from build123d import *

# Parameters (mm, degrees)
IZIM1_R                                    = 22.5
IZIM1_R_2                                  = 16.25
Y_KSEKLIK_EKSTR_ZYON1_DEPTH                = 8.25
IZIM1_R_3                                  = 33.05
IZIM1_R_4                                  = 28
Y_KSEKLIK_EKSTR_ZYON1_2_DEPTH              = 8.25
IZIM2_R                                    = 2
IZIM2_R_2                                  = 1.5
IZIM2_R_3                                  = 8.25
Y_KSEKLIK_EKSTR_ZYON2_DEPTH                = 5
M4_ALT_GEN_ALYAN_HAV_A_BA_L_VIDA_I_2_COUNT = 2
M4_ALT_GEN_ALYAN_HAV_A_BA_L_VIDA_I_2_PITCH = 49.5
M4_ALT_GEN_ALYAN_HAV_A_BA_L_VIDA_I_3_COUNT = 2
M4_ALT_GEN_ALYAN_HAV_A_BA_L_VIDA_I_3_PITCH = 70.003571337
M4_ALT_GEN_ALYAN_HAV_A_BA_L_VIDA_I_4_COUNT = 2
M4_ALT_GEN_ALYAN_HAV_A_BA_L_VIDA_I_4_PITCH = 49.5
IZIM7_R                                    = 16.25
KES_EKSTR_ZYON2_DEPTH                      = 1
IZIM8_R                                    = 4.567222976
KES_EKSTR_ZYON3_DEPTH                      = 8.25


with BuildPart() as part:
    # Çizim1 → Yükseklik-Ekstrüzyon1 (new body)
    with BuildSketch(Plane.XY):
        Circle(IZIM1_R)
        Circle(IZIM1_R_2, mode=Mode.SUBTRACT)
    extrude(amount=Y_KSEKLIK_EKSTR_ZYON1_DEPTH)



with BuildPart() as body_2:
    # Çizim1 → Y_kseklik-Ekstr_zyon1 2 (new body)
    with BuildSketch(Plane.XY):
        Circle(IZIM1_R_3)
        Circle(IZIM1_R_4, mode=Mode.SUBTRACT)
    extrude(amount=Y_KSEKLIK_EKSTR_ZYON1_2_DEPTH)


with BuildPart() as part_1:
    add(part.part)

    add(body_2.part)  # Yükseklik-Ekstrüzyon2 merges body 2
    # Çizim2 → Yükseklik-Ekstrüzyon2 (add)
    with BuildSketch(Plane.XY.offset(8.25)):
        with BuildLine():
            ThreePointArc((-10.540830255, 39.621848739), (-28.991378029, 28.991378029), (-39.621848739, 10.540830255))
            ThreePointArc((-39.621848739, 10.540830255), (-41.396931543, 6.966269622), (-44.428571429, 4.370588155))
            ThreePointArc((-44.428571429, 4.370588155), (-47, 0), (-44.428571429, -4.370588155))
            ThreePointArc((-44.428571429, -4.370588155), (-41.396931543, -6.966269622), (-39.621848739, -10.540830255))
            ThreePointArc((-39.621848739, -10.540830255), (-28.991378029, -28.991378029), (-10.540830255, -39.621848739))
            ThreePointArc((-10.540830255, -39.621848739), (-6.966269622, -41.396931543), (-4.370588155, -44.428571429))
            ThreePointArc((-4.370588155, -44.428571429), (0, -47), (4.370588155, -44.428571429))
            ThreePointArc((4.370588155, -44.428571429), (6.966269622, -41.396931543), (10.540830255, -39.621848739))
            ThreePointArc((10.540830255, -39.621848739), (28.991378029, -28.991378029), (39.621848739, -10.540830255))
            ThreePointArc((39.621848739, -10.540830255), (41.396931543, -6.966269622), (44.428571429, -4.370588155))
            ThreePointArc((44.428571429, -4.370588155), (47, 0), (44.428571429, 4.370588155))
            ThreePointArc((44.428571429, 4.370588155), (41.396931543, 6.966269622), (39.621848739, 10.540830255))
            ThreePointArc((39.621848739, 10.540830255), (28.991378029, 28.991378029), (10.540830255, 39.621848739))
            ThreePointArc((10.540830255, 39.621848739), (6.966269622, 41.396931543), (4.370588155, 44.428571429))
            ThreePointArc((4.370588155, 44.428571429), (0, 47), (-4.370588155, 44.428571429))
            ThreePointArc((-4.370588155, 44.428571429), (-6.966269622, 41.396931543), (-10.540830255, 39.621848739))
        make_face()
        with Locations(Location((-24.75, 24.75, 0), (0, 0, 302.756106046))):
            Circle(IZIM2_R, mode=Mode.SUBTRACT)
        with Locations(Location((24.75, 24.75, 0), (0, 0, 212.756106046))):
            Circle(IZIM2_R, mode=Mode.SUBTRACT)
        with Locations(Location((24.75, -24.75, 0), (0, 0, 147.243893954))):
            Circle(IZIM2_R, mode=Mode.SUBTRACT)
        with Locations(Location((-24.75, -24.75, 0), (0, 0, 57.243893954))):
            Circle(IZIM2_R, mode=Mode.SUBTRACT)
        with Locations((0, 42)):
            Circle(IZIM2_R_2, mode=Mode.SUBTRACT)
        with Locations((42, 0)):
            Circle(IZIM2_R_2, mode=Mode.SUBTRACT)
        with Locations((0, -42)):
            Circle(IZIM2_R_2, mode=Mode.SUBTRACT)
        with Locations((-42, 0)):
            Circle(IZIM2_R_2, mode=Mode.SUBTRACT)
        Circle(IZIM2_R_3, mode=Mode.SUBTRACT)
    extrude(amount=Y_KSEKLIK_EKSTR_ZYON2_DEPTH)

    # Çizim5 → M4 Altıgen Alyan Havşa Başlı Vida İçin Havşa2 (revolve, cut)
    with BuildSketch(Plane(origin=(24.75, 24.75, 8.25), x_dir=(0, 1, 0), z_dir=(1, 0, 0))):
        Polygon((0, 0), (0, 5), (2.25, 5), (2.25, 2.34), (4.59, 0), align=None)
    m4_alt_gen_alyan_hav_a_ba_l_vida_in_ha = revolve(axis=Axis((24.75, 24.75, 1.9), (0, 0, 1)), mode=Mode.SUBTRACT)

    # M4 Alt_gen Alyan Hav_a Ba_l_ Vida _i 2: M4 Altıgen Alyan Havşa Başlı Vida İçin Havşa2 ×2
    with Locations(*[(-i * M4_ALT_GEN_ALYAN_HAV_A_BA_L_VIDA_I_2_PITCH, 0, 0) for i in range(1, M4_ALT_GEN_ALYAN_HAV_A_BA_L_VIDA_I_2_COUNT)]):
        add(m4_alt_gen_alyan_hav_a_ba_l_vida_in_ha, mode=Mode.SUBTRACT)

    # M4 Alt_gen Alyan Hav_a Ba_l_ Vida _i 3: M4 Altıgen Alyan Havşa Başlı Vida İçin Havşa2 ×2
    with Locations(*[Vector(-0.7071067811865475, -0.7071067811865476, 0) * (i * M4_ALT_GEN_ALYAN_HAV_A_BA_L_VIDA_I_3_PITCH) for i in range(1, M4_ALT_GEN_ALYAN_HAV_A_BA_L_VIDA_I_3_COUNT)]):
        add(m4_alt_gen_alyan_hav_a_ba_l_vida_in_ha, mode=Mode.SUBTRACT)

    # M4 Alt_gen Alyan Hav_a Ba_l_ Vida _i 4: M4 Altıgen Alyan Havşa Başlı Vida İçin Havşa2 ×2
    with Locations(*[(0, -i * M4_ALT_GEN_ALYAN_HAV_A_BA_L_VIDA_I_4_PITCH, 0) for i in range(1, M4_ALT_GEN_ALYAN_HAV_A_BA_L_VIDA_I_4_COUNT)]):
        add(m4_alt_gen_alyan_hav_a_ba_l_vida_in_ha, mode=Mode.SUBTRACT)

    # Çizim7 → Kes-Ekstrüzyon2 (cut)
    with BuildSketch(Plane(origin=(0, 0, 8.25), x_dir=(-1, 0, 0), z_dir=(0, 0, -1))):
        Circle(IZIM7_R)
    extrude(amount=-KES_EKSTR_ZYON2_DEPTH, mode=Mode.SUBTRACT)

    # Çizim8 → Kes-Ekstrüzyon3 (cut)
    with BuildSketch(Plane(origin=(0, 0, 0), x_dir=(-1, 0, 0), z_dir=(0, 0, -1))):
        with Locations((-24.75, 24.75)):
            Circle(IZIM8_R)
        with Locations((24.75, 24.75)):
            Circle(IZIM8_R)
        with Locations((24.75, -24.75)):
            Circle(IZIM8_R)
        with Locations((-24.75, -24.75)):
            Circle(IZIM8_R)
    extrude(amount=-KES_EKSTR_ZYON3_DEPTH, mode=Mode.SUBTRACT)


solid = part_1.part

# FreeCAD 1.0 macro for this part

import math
import FreeCAD as App
import Part
import Sketcher
Q = App.Units.Quantity

doc = App.newDocument("Part")
body = doc.addObject("PartDesign::Body", "Body")

# Sketch on XY plane
sketch1 = doc.addObject("Sketcher::SketchObject", "Sketch")
body.addObject(sketch1)
sketch1.AttachmentSupport = (doc.XY_Plane, [""])
sketch1.MapMode = "FlatFace"
sketch1.addGeometry(Part.Circle(App.Vector(0, 0, 0), App.Vector(0, 0, 1), 22), False)
sketch1.addGeometry(Part.Circle(App.Vector(0, 0, 0), App.Vector(0, 0, 1), 16), False)
sketch1.addConstraint(Sketcher.Constraint("Coincident", 0, 3, -1, 1))
sketch1.addConstraint(Sketcher.Constraint("Coincident", 1, 3, -1, 1))
sketch1.addConstraint(Sketcher.Constraint("Diameter", 0, 45.0))
sketch1.addConstraint(Sketcher.Constraint("Diameter", 1, 32.5))
pad1 = doc.addObject("PartDesign::Pad", "Pad")
body.addObject(pad1)
pad1.Profile = sketch1
pad1.Length = 8.25
body2 = doc.addObject("PartDesign::Body", "Body001")

# Sketch on XY plane
sketch2 = doc.addObject("Sketcher::SketchObject", "Sketch001")
body2.addObject(sketch2)
sketch2.AttachmentSupport = (doc.getObject("XY_Plane001"), [""])
sketch2.MapMode = "FlatFace"
sketch2.addGeometry(Part.Circle(App.Vector(0, 0, 0), App.Vector(0, 0, 1), 33), False)
sketch2.addGeometry(Part.Circle(App.Vector(0, 0, 0), App.Vector(0, 0, 1), 28), False)
sketch2.addConstraint(Sketcher.Constraint("Coincident", 0, 3, -1, 1))
sketch2.addConstraint(Sketcher.Constraint("Coincident", 1, 3, -1, 1))
sketch2.addConstraint(Sketcher.Constraint("Diameter", 1, 56.0))
sketch2.addConstraint(Sketcher.Constraint("Diameter", 0, 66.1))
pad2 = doc.addObject("PartDesign::Pad", "Pad001")
body2.addObject(pad2)
pad2.Profile = sketch2
pad2.Length = 8.25
body.AllowCompound = True
doc.recompute()

boolean = doc.addObject("PartDesign::Boolean", "Boolean")
body.addObject(boolean)
boolean.Type = "Fuse"
boolean.addObjects([body2])

# Sketch on XY plane
sketch3 = doc.addObject("Sketcher::SketchObject", "Sketch002")
body.addObject(sketch3)
sketch3.AttachmentSupport = (doc.XY_Plane, [""])
sketch3.MapMode = "FlatFace"
sketch3.AttachmentOffset = App.Placement(App.Vector(0, 0, 8.25), App.Rotation())
sketch3.addGeometry(Part.ArcOfCircle(Part.Circle(App.Vector(0, 0, 0), App.Vector(0, 0, 1), 41), math.radians(105), math.radians(165)), False)
sketch3.addGeometry(Part.ArcOfCircle(Part.Circle(App.Vector(-49.3, 13.1, 0), App.Vector(0, 0, 1), 10), math.radians(-61), math.radians(-15)), False)
sketch3.addGeometry(Part.ArcOfCircle(Part.Circle(App.Vector(-42, 0, 0), App.Vector(0, 0, 1), 5), math.radians(119), math.radians(241)), False)
sketch3.addGeometry(Part.ArcOfCircle(Part.Circle(App.Vector(-49.3, -13.1, 0), App.Vector(0, 0, 1), 10), math.radians(15), math.radians(61)), False)
sketch3.addGeometry(Part.ArcOfCircle(Part.Circle(App.Vector(0, 0, 0), App.Vector(0, 0, 1), 41), math.radians(-165), math.radians(-105)), False)
sketch3.addGeometry(Part.ArcOfCircle(Part.Circle(App.Vector(-13.1, -49.3, 0), App.Vector(0, 0, 1), 10), math.radians(29), math.radians(75)), False)
sketch3.addGeometry(Part.ArcOfCircle(Part.Circle(App.Vector(0, -42, 0), App.Vector(0, 0, 1), 5), math.radians(-151), math.radians(-29)), False)
sketch3.addGeometry(Part.ArcOfCircle(Part.Circle(App.Vector(13.1, -49.3, 0), App.Vector(0, 0, 1), 10), math.radians(105), math.radians(151)), False)
sketch3.addGeometry(Part.ArcOfCircle(Part.Circle(App.Vector(0, 0, 0), App.Vector(0, 0, 1), 41), math.radians(-75), math.radians(-15)), False)
sketch3.addGeometry(Part.ArcOfCircle(Part.Circle(App.Vector(49.3, -13.1, 0), App.Vector(0, 0, 1), 10), math.radians(119), math.radians(165)), False)
sketch3.addGeometry(Part.ArcOfCircle(Part.Circle(App.Vector(42, 0, 0), App.Vector(0, 0, 1), 5), math.radians(-61), math.radians(61)), False)
sketch3.addGeometry(Part.ArcOfCircle(Part.Circle(App.Vector(49.3, 13.1, 0), App.Vector(0, 0, 1), 10), math.radians(-165), math.radians(-119)), False)
sketch3.addGeometry(Part.ArcOfCircle(Part.Circle(App.Vector(0, 0, 0), App.Vector(0, 0, 1), 41), math.radians(15), math.radians(75)), False)
sketch3.addGeometry(Part.ArcOfCircle(Part.Circle(App.Vector(13.1, 49.3, 0), App.Vector(0, 0, 1), 10), math.radians(-151), math.radians(-105)), False)
sketch3.addGeometry(Part.ArcOfCircle(Part.Circle(App.Vector(0, 42, 0), App.Vector(0, 0, 1), 5), math.radians(29), math.radians(151)), False)
sketch3.addGeometry(Part.ArcOfCircle(Part.Circle(App.Vector(-13.1, 49.3, 0), App.Vector(0, 0, 1), 10), math.radians(-75), math.radians(-29)), False)
sketch3.addGeometry(Part.Circle(App.Vector(-24.8, -24.8, 0), App.Vector(0, 0, 1), 2), False)
sketch3.addGeometry(Part.Circle(App.Vector(0, -42, 0), App.Vector(0, 0, 1), 1.5), False)
sketch3.addGeometry(Part.Circle(App.Vector(24.8, -24.8, 0), App.Vector(0, 0, 1), 2), False)
sketch3.addGeometry(Part.Circle(App.Vector(-42, 0, 0), App.Vector(0, 0, 1), 1.5), False)
sketch3.addGeometry(Part.Circle(App.Vector(-24.8, 24.8, 0), App.Vector(0, 0, 1), 2), False)
sketch3.addGeometry(Part.Circle(App.Vector(0, 0, 0), App.Vector(0, 0, 1), 8.2), False)
sketch3.addGeometry(Part.Circle(App.Vector(42, 0, 0), App.Vector(0, 0, 1), 1.5), False)
sketch3.addGeometry(Part.Circle(App.Vector(0, 42, 0), App.Vector(0, 0, 1), 1.5), False)
sketch3.addGeometry(Part.Circle(App.Vector(24.8, 24.8, 0), App.Vector(0, 0, 1), 2), False)
sketch3.addConstraint(Sketcher.Constraint("Tangent", 0, 2, 1, 2))
sketch3.addConstraint(Sketcher.Constraint("Tangent", 1, 1, 2, 1))
sketch3.addConstraint(Sketcher.Constraint("Tangent", 2, 2, 3, 2))
sketch3.addConstraint(Sketcher.Constraint("Tangent", 3, 1, 4, 1))
sketch3.addConstraint(Sketcher.Constraint("Tangent", 4, 2, 5, 2))
sketch3.addConstraint(Sketcher.Constraint("Tangent", 5, 1, 6, 1))
sketch3.addConstraint(Sketcher.Constraint("Tangent", 6, 2, 7, 2))
sketch3.addConstraint(Sketcher.Constraint("Tangent", 7, 1, 8, 1))
sketch3.addConstraint(Sketcher.Constraint("Tangent", 8, 2, 9, 2))
sketch3.addConstraint(Sketcher.Constraint("Tangent", 9, 1, 10, 1))
sketch3.addConstraint(Sketcher.Constraint("Tangent", 10, 2, 11, 2))
sketch3.addConstraint(Sketcher.Constraint("Tangent", 11, 1, 12, 1))
sketch3.addConstraint(Sketcher.Constraint("Tangent", 12, 2, 13, 2))
sketch3.addConstraint(Sketcher.Constraint("Tangent", 13, 1, 14, 1))
sketch3.addConstraint(Sketcher.Constraint("Tangent", 14, 2, 15, 2))
sketch3.addConstraint(Sketcher.Constraint("Tangent", 15, 1, 0, 1))
sketch3.addConstraint(Sketcher.Constraint("Coincident", 0, 3, -1, 1))
sketch3.addConstraint(Sketcher.Constraint("Coincident", 4, 3, -1, 1))
sketch3.addConstraint(Sketcher.Constraint("Coincident", 8, 3, -1, 1))
sketch3.addConstraint(Sketcher.Constraint("Coincident", 12, 3, -1, 1))
sketch3.addConstraint(Sketcher.Constraint("Coincident", 21, 3, -1, 1))
sketch3.addConstraint(Sketcher.Constraint("Coincident", 17, 3, 6, 3))
sketch3.addConstraint(Sketcher.Constraint("Coincident", 19, 3, 2, 3))
sketch3.addConstraint(Sketcher.Constraint("Coincident", 22, 3, 10, 3))
sketch3.addConstraint(Sketcher.Constraint("Coincident", 23, 3, 14, 3))
sketch3.addConstraint(Sketcher.Constraint("Equal", 1, 3))
sketch3.addConstraint(Sketcher.Constraint("Equal", 0, 4))
sketch3.addConstraint(Sketcher.Constraint("Equal", 3, 5))
sketch3.addConstraint(Sketcher.Constraint("Equal", 2, 6))
sketch3.addConstraint(Sketcher.Constraint("Equal", 5, 7))
sketch3.addConstraint(Sketcher.Constraint("Equal", 4, 8))
sketch3.addConstraint(Sketcher.Constraint("Equal", 7, 9))
sketch3.addConstraint(Sketcher.Constraint("Equal", 6, 10))
sketch3.addConstraint(Sketcher.Constraint("Equal", 9, 11))
sketch3.addConstraint(Sketcher.Constraint("Equal", 8, 12))
sketch3.addConstraint(Sketcher.Constraint("Equal", 11, 13))
sketch3.addConstraint(Sketcher.Constraint("Equal", 10, 14))
sketch3.addConstraint(Sketcher.Constraint("Equal", 13, 15))
sketch3.addConstraint(Sketcher.Constraint("Equal", 16, 18))
sketch3.addConstraint(Sketcher.Constraint("Equal", 17, 19))
sketch3.addConstraint(Sketcher.Constraint("Equal", 18, 20))
sketch3.addConstraint(Sketcher.Constraint("Equal", 19, 22))
sketch3.addConstraint(Sketcher.Constraint("Equal", 22, 23))
sketch3.addConstraint(Sketcher.Constraint("Equal", 20, 24))
sketch3.addConstraint(Sketcher.Constraint("Symmetric", 2, 3, 10, 3, -1, 1))
sketch3.addConstraint(Sketcher.Constraint("Symmetric", 6, 3, 14, 3, -1, 1))
sketch3.addConstraint(Sketcher.Constraint("Symmetric", 18, 3, 20, 3, -1, 1))
sketch3.addConstraint(Sketcher.Constraint("Symmetric", 16, 3, 24, 3, -1, 1))
sketch3.addConstraint(Sketcher.Constraint("Symmetric", 16, 3, 18, 3, -2))
sketch3.addConstraint(Sketcher.Constraint("PointOnObject", 2, 3, -1))
sketch3.addConstraint(Sketcher.Constraint("PointOnObject", 6, 3, -2))
sketch3.addConstraint(Sketcher.Constraint("Diameter", 16, 4.0))
sketch3.addConstraint(Sketcher.Constraint("Diameter", 17, 3.0))
sketch3.addConstraint(Sketcher.Constraint("Radius", 0, 41.0))
sketch3.addConstraint(Sketcher.Constraint("Radius", 1, 10.0))
sketch3.addConstraint(Sketcher.Constraint("Radius", 2, 5.0))
sketch3.addConstraint(Sketcher.Constraint("Diameter", 21, 16.5))
sketch3.addConstraint(Sketcher.Constraint("DistanceX", 2, 3, -1, 1, 42.0))
sketch3.addConstraint(Sketcher.Constraint("DistanceY", 6, 3, -1, 1, 42.0))
sketch3.addConstraint(Sketcher.Constraint("DistanceX", 16, 3, -1, 1, 24.75))
sketch3.addConstraint(Sketcher.Constraint("DistanceY", 16, 3, -1, 1, 24.75))
pad3 = doc.addObject("PartDesign::Pad", "Pad002")
body.addObject(pad3)
pad3.Profile = sketch3
pad3.Length = 5

# Sketch on YZ plane
sketch4 = doc.addObject("Sketcher::SketchObject", "Sketch003")
body.addObject(sketch4)
sketch4.AttachmentSupport = (doc.YZ_Plane, [""])
sketch4.MapMode = "FlatFace"
sketch4.AttachmentOffset = App.Placement(App.Vector(0, 0, 24.75), App.Rotation())
sketch4.addGeometry(Part.LineSegment(App.Vector(24.8, 13.2, 0), App.Vector(24.8, 8.2, 0)), False)
sketch4.addGeometry(Part.LineSegment(App.Vector(24.8, 8.2, 0), App.Vector(29.3, 8.2, 0)), False)
sketch4.addGeometry(Part.LineSegment(App.Vector(29.3, 8.2, 0), App.Vector(27, 10.6, 0)), False)
sketch4.addGeometry(Part.LineSegment(App.Vector(27, 10.6, 0), App.Vector(27, 13.2, 0)), False)
sketch4.addGeometry(Part.LineSegment(App.Vector(27, 13.2, 0), App.Vector(24.8, 13.2, 0)), False)
sketch4.addGeometry(Part.LineSegment(App.Vector(24.8, 8.2, 0), App.Vector(24.8, 13.2, 0)), True)  # axis
sketch4.addConstraint(Sketcher.Constraint("Coincident", 0, 2, 1, 1))
sketch4.addConstraint(Sketcher.Constraint("Coincident", 1, 2, 2, 1))
sketch4.addConstraint(Sketcher.Constraint("Coincident", 2, 2, 3, 1))
sketch4.addConstraint(Sketcher.Constraint("Coincident", 3, 2, 4, 1))
sketch4.addConstraint(Sketcher.Constraint("Coincident", 4, 2, 0, 1))
sketch4.addConstraint(Sketcher.Constraint("Vertical", 0))
sketch4.addConstraint(Sketcher.Constraint("Horizontal", 1))
sketch4.addConstraint(Sketcher.Constraint("Vertical", 3))
sketch4.addConstraint(Sketcher.Constraint("Horizontal", 4))
sketch4.addConstraint(Sketcher.Constraint("Vertical", 5))
sketch4.addConstraint(Sketcher.Constraint("Coincident", 5, 1, 0, 2))
sketch4.addConstraint(Sketcher.Constraint("Horizontal", 3, 2, 5, 2))
sketch4.addConstraint(Sketcher.Constraint("DistanceY", 0, 2, 0, 1, 5.0))
sketch4.addConstraint(Sketcher.Constraint("Angle", 2, Q("135 deg")))
sketch4.addConstraint(Sketcher.Constraint("DistanceX", -1, 1, 2, 2, 27.0))
sketch4.addConstraint(Sketcher.Constraint("DistanceX", 1, 1, 1, 2, 4.59))
sketch4.addConstraint(Sketcher.Constraint("DistanceX", 4, 2, 4, 1, 2.25))
sketch4.addConstraint(Sketcher.Constraint("DistanceY", -1, 1, 0, 2, 8.25))
groove = doc.addObject("PartDesign::Groove", "Groove")
body.addObject(groove)
groove.Profile = sketch4
groove.ReferenceAxis = (sketch4, ["Axis0"])
groove.Angle = 360
doc.recompute()

linearpattern = doc.addObject("PartDesign::LinearPattern", "LinearPattern")
body.addObject(linearpattern)
linearpattern.Originals = [groove]
linearpattern.Direction = (doc.X_Axis, [""])
linearpattern.Mode = "offset"
linearpattern.Offset = 49.5
linearpattern.Occurrences = 2
linearpattern.Reversed = True
body.Tip = linearpattern
doc.recompute()

datumline = doc.addObject("PartDesign::Line", "DatumLine")
body.addObject(datumline)
datumline.Placement = App.Placement(App.Vector(0, 0, 0), App.Rotation(App.Vector(0, 0, 1), App.Vector(-0.707106781, -0.707106781, 0)))
linearpattern2 = doc.addObject("PartDesign::LinearPattern", "LinearPattern001")
body.addObject(linearpattern2)
linearpattern2.Originals = [groove]
linearpattern2.Direction = (datumline, [""])
linearpattern2.Mode = "offset"
linearpattern2.Offset = 70.003571
linearpattern2.Occurrences = 2
body.Tip = linearpattern2
doc.recompute()

linearpattern3 = doc.addObject("PartDesign::LinearPattern", "LinearPattern002")
body.addObject(linearpattern3)
linearpattern3.Originals = [groove]
linearpattern3.Direction = (doc.Y_Axis, [""])
linearpattern3.Mode = "offset"
linearpattern3.Offset = 49.5
linearpattern3.Occurrences = 2
linearpattern3.Reversed = True
body.Tip = linearpattern3

# Sketch on XY plane
sketch5 = doc.addObject("Sketcher::SketchObject", "Sketch004")
body.addObject(sketch5)
sketch5.AttachmentSupport = (doc.XY_Plane, [""])
sketch5.MapMode = "FlatFace"
sketch5.AttachmentOffset = App.Placement(App.Vector(0, 0, 8.25), App.Rotation())
sketch5.addGeometry(Part.Circle(App.Vector(0, 0, 0), App.Vector(0, 0, 1), 16), False)
sketch5.addConstraint(Sketcher.Constraint("Coincident", 0, 3, -1, 1))
sketch5.addConstraint(Sketcher.Constraint("Diameter", 0, 32.5))
pocket1 = doc.addObject("PartDesign::Pocket", "Pocket")
body.addObject(pocket1)
pocket1.Profile = sketch5
pocket1.Length = 1
pocket1.Reversed = True

# Sketch on XY plane
sketch6 = doc.addObject("Sketcher::SketchObject", "Sketch005")
body.addObject(sketch6)
sketch6.AttachmentSupport = (doc.XY_Plane, [""])
sketch6.MapMode = "FlatFace"
sketch6.addGeometry(Part.Circle(App.Vector(24.8, 24.8, 0), App.Vector(0, 0, 1), 4.6), False)
sketch6.addGeometry(Part.Circle(App.Vector(-24.8, 24.8, 0), App.Vector(0, 0, 1), 4.6), False)
sketch6.addGeometry(Part.Circle(App.Vector(-24.8, -24.8, 0), App.Vector(0, 0, 1), 4.6), False)
sketch6.addGeometry(Part.Circle(App.Vector(24.8, -24.8, 0), App.Vector(0, 0, 1), 4.6), False)
sketch6.addConstraint(Sketcher.Constraint("Equal", 0, 1))
sketch6.addConstraint(Sketcher.Constraint("Equal", 1, 2))
sketch6.addConstraint(Sketcher.Constraint("Equal", 2, 3))
sketch6.addConstraint(Sketcher.Constraint("Symmetric", 0, 3, 2, 3, -1, 1))
sketch6.addConstraint(Sketcher.Constraint("Symmetric", 1, 3, 3, 3, -1, 1))
sketch6.addConstraint(Sketcher.Constraint("Symmetric", 0, 3, 1, 3, -2))
sketch6.addConstraint(Sketcher.Constraint("DistanceX", 1, 3, 0, 3, 49.5))
sketch6.addConstraint(Sketcher.Constraint("DistanceY", 2, 3, 1, 3, 49.5))
sketch6.addConstraint(Sketcher.Constraint("Diameter", 0, 9.134446))
pocket2 = doc.addObject("PartDesign::Pocket", "Pocket001")
body.addObject(pocket2)
pocket2.Profile = sketch6
pocket2.Length = 8.25
pocket2.Reversed = True

doc.recompute()
